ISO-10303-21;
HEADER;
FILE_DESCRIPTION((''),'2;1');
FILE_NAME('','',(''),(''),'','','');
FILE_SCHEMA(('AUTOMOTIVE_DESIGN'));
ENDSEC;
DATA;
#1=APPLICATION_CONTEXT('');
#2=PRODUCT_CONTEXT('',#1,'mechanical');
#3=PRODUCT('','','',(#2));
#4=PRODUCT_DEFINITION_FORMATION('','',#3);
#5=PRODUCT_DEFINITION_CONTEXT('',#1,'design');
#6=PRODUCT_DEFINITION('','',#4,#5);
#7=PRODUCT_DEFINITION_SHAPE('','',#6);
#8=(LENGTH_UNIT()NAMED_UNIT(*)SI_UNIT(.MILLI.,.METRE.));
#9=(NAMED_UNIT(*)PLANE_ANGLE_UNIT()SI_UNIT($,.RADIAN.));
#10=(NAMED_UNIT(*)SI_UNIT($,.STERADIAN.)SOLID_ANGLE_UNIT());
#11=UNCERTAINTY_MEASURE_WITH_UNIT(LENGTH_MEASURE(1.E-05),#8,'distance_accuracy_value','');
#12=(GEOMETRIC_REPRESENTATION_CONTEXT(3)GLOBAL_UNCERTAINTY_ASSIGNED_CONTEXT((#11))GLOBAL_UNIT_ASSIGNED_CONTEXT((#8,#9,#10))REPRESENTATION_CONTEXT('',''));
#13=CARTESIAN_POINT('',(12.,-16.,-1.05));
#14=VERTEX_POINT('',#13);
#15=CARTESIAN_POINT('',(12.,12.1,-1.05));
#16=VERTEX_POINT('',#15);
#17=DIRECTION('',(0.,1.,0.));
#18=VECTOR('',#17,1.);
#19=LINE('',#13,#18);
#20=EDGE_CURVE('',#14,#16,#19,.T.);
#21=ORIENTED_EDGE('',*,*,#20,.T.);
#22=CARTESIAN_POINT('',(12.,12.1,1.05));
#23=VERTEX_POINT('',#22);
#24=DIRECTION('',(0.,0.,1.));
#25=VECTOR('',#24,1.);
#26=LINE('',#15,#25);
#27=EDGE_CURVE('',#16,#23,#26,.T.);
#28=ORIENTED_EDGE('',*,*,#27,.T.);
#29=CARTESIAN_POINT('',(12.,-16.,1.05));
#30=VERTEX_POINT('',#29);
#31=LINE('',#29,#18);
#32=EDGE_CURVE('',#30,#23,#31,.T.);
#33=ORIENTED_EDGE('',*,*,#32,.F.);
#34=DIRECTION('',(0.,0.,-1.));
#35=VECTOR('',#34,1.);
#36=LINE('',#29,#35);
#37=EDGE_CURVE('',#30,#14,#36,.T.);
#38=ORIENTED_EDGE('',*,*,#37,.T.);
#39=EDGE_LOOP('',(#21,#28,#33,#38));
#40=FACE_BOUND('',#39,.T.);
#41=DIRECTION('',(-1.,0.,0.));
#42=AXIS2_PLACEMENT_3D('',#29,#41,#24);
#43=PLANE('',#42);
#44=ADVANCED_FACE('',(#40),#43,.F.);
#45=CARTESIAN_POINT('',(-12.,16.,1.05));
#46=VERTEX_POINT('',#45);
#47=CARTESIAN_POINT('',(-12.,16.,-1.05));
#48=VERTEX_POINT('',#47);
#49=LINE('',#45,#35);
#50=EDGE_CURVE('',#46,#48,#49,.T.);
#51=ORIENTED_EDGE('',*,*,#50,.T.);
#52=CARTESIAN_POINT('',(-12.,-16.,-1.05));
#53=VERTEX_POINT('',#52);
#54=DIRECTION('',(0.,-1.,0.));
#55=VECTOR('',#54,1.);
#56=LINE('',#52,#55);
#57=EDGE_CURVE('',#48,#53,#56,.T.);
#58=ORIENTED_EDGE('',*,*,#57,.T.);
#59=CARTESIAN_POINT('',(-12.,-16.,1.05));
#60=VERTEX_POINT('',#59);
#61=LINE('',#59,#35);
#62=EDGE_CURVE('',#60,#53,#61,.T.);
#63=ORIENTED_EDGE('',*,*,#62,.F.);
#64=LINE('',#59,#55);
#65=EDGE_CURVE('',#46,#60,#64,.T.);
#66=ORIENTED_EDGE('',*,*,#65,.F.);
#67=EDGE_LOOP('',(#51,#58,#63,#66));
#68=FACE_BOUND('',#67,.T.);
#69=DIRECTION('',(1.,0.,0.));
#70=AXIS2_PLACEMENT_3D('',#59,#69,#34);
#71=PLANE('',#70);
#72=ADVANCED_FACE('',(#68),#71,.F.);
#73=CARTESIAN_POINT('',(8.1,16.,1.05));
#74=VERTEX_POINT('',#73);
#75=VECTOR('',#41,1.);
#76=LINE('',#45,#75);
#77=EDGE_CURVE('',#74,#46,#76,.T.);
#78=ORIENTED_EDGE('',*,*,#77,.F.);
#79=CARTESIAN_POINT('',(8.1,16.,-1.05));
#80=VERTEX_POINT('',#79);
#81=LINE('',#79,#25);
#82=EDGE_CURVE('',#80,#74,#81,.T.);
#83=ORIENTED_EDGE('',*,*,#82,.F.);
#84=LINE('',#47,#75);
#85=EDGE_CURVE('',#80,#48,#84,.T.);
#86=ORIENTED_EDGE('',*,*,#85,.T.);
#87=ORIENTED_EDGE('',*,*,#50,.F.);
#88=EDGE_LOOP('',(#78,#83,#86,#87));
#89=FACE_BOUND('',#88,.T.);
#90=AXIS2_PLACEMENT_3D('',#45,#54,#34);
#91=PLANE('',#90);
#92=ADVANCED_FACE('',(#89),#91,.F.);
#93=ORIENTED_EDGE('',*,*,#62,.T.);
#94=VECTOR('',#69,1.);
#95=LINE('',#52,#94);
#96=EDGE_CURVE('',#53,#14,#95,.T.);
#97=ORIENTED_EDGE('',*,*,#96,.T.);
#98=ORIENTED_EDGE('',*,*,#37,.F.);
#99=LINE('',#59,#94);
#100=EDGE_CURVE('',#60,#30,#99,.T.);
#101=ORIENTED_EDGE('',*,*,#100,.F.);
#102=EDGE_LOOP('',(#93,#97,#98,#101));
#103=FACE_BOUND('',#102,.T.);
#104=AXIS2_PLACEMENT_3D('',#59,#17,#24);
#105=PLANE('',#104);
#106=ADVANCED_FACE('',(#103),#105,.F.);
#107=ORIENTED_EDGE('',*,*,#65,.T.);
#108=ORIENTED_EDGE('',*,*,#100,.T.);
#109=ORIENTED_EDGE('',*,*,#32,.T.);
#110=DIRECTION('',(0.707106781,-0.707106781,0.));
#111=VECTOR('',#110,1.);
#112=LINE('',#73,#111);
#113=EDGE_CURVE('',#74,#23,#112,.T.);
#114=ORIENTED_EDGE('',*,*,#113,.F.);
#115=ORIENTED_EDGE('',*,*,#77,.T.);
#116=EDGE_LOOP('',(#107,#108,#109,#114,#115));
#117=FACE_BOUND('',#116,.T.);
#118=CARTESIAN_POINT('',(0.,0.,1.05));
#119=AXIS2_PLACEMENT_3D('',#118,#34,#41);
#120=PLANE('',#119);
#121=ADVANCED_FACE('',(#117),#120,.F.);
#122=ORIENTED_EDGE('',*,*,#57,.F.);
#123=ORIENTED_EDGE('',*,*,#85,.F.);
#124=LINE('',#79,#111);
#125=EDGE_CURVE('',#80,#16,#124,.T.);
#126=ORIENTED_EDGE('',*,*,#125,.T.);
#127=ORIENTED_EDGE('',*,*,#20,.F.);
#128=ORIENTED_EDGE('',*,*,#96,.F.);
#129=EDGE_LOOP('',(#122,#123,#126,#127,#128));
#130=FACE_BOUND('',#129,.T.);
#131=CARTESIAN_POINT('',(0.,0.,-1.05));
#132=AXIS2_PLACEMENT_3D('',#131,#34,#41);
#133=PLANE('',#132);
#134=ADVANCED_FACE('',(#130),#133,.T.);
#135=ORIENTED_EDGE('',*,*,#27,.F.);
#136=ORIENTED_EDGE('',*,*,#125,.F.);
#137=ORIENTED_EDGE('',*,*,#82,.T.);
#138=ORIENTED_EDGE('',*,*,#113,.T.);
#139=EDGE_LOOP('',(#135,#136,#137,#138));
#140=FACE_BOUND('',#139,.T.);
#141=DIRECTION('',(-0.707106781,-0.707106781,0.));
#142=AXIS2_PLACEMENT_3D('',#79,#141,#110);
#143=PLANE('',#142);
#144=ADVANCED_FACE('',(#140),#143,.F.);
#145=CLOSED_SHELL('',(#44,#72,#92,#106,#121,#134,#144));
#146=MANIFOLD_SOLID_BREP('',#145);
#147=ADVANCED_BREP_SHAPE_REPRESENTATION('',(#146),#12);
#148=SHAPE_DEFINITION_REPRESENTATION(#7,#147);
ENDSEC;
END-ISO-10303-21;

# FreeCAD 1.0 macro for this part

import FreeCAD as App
import Part
import Sketcher

V = App.Vector
Q = App.Units.Quantity


def add_polygon(sketch, points):
    """Adds a closed chain of lines whose ends are joined by coincident constraints."""
    first, n = sketch.GeometryCount, len(points)
    for a, b in zip(points, points[1:] + points[:1]):
        sketch.addGeometry(Part.LineSegment(App.Vector(*a, 0), App.Vector(*b, 0)), False)
    for i in range(n):
        sketch.addConstraint(Sketcher.Constraint("Coincident", first + i, 2, first + (i + 1) % n, 1))

doc = App.newDocument("Part")
params = doc.addObject("Spreadsheet::Sheet", "Params")
for row, (alias, value) in enumerate([
    ("sketch1_width", "24 mm"),
    ("sketch1_height", "32 mm"),
    ("pad1_length", "2.1 mm"),
    ("sketch2_width", "3.9 mm"),
], start=1):
    params.set(f"A{row}", alias)
    params.set(f"B{row}", "=" + value)
    params.setAlias(f"B{row}", alias)

body = doc.addObject("PartDesign::Body", "Body")

# Sketch on XY plane
sketch1 = doc.addObject("Sketcher::SketchObject", "Sketch")
body.addObject(sketch1)
sketch1.AttachmentSupport = (doc.XY_Plane, [""])
sketch1.MapMode = "FlatFace"
add_polygon(sketch1, [(-12, 16), (-12, -16), (12, -16), (12, 16)])  # lines 0-3
sketch1.addConstraint(Sketcher.Constraint("Vertical", 0))
sketch1.addConstraint(Sketcher.Constraint("Horizontal", 1))
sketch1.addConstraint(Sketcher.Constraint("Vertical", 2))
sketch1.addConstraint(Sketcher.Constraint("Horizontal", 3))
sketch1.addConstraint(Sketcher.Constraint("Symmetric", 0, 2, 2, 2, -1, 1))
sketch1.addConstraint(Sketcher.Constraint("DistanceX", 1, 1, 1, 2, Q("24 mm")))
sketch1.addConstraint(Sketcher.Constraint("DistanceY", 0, 2, 0, 1, Q("32 mm")))
sketch1.setExpression("Constraints[9]", "Params.sketch1_width")
sketch1.setExpression("Constraints[10]", "Params.sketch1_height")
pad1 = doc.addObject("PartDesign::Pad", "Pad")
body.addObject(pad1)
pad1.Profile = sketch1
pad1.setExpression("Length", "Params.pad1_length")
pad1.Midplane = True

# Sketch on XY plane
sketch2 = doc.addObject("Sketcher::SketchObject", "Sketch001")
body.addObject(sketch2)
sketch2.AttachmentSupport = (doc.XY_Plane, [""])
sketch2.MapMode = "FlatFace"
sketch2.AttachmentOffset = App.Placement(V(0, 0, 1.05), App.Rotation())
add_polygon(sketch2, [(12, 16), (8.1, 16), (12, 12.1)])  # lines 0-2
sketch2.addConstraint(Sketcher.Constraint("Horizontal", 0))
sketch2.addConstraint(Sketcher.Constraint("Vertical", 2))
sketch2.addConstraint(Sketcher.Constraint("Equal", 0, 2))
sketch2.addConstraint(Sketcher.Constraint("DistanceX", 0, 2, 0, 1, Q("3.9 mm")))
sketch2.addConstraint(Sketcher.Constraint("DistanceY", -1, 1, 0, 2, Q("16 mm")))
sketch2.addConstraint(Sketcher.Constraint("DistanceX", -1, 1, 1, 2, Q("12 mm")))
sketch2.setExpression("Constraints[6]", "Params.sketch2_width")
pocket1 = doc.addObject("PartDesign::Pocket", "Pocket")
body.addObject(pocket1)
pocket1.Profile = sketch2
pocket1.Type = "ThroughAll"

doc.recompute()
